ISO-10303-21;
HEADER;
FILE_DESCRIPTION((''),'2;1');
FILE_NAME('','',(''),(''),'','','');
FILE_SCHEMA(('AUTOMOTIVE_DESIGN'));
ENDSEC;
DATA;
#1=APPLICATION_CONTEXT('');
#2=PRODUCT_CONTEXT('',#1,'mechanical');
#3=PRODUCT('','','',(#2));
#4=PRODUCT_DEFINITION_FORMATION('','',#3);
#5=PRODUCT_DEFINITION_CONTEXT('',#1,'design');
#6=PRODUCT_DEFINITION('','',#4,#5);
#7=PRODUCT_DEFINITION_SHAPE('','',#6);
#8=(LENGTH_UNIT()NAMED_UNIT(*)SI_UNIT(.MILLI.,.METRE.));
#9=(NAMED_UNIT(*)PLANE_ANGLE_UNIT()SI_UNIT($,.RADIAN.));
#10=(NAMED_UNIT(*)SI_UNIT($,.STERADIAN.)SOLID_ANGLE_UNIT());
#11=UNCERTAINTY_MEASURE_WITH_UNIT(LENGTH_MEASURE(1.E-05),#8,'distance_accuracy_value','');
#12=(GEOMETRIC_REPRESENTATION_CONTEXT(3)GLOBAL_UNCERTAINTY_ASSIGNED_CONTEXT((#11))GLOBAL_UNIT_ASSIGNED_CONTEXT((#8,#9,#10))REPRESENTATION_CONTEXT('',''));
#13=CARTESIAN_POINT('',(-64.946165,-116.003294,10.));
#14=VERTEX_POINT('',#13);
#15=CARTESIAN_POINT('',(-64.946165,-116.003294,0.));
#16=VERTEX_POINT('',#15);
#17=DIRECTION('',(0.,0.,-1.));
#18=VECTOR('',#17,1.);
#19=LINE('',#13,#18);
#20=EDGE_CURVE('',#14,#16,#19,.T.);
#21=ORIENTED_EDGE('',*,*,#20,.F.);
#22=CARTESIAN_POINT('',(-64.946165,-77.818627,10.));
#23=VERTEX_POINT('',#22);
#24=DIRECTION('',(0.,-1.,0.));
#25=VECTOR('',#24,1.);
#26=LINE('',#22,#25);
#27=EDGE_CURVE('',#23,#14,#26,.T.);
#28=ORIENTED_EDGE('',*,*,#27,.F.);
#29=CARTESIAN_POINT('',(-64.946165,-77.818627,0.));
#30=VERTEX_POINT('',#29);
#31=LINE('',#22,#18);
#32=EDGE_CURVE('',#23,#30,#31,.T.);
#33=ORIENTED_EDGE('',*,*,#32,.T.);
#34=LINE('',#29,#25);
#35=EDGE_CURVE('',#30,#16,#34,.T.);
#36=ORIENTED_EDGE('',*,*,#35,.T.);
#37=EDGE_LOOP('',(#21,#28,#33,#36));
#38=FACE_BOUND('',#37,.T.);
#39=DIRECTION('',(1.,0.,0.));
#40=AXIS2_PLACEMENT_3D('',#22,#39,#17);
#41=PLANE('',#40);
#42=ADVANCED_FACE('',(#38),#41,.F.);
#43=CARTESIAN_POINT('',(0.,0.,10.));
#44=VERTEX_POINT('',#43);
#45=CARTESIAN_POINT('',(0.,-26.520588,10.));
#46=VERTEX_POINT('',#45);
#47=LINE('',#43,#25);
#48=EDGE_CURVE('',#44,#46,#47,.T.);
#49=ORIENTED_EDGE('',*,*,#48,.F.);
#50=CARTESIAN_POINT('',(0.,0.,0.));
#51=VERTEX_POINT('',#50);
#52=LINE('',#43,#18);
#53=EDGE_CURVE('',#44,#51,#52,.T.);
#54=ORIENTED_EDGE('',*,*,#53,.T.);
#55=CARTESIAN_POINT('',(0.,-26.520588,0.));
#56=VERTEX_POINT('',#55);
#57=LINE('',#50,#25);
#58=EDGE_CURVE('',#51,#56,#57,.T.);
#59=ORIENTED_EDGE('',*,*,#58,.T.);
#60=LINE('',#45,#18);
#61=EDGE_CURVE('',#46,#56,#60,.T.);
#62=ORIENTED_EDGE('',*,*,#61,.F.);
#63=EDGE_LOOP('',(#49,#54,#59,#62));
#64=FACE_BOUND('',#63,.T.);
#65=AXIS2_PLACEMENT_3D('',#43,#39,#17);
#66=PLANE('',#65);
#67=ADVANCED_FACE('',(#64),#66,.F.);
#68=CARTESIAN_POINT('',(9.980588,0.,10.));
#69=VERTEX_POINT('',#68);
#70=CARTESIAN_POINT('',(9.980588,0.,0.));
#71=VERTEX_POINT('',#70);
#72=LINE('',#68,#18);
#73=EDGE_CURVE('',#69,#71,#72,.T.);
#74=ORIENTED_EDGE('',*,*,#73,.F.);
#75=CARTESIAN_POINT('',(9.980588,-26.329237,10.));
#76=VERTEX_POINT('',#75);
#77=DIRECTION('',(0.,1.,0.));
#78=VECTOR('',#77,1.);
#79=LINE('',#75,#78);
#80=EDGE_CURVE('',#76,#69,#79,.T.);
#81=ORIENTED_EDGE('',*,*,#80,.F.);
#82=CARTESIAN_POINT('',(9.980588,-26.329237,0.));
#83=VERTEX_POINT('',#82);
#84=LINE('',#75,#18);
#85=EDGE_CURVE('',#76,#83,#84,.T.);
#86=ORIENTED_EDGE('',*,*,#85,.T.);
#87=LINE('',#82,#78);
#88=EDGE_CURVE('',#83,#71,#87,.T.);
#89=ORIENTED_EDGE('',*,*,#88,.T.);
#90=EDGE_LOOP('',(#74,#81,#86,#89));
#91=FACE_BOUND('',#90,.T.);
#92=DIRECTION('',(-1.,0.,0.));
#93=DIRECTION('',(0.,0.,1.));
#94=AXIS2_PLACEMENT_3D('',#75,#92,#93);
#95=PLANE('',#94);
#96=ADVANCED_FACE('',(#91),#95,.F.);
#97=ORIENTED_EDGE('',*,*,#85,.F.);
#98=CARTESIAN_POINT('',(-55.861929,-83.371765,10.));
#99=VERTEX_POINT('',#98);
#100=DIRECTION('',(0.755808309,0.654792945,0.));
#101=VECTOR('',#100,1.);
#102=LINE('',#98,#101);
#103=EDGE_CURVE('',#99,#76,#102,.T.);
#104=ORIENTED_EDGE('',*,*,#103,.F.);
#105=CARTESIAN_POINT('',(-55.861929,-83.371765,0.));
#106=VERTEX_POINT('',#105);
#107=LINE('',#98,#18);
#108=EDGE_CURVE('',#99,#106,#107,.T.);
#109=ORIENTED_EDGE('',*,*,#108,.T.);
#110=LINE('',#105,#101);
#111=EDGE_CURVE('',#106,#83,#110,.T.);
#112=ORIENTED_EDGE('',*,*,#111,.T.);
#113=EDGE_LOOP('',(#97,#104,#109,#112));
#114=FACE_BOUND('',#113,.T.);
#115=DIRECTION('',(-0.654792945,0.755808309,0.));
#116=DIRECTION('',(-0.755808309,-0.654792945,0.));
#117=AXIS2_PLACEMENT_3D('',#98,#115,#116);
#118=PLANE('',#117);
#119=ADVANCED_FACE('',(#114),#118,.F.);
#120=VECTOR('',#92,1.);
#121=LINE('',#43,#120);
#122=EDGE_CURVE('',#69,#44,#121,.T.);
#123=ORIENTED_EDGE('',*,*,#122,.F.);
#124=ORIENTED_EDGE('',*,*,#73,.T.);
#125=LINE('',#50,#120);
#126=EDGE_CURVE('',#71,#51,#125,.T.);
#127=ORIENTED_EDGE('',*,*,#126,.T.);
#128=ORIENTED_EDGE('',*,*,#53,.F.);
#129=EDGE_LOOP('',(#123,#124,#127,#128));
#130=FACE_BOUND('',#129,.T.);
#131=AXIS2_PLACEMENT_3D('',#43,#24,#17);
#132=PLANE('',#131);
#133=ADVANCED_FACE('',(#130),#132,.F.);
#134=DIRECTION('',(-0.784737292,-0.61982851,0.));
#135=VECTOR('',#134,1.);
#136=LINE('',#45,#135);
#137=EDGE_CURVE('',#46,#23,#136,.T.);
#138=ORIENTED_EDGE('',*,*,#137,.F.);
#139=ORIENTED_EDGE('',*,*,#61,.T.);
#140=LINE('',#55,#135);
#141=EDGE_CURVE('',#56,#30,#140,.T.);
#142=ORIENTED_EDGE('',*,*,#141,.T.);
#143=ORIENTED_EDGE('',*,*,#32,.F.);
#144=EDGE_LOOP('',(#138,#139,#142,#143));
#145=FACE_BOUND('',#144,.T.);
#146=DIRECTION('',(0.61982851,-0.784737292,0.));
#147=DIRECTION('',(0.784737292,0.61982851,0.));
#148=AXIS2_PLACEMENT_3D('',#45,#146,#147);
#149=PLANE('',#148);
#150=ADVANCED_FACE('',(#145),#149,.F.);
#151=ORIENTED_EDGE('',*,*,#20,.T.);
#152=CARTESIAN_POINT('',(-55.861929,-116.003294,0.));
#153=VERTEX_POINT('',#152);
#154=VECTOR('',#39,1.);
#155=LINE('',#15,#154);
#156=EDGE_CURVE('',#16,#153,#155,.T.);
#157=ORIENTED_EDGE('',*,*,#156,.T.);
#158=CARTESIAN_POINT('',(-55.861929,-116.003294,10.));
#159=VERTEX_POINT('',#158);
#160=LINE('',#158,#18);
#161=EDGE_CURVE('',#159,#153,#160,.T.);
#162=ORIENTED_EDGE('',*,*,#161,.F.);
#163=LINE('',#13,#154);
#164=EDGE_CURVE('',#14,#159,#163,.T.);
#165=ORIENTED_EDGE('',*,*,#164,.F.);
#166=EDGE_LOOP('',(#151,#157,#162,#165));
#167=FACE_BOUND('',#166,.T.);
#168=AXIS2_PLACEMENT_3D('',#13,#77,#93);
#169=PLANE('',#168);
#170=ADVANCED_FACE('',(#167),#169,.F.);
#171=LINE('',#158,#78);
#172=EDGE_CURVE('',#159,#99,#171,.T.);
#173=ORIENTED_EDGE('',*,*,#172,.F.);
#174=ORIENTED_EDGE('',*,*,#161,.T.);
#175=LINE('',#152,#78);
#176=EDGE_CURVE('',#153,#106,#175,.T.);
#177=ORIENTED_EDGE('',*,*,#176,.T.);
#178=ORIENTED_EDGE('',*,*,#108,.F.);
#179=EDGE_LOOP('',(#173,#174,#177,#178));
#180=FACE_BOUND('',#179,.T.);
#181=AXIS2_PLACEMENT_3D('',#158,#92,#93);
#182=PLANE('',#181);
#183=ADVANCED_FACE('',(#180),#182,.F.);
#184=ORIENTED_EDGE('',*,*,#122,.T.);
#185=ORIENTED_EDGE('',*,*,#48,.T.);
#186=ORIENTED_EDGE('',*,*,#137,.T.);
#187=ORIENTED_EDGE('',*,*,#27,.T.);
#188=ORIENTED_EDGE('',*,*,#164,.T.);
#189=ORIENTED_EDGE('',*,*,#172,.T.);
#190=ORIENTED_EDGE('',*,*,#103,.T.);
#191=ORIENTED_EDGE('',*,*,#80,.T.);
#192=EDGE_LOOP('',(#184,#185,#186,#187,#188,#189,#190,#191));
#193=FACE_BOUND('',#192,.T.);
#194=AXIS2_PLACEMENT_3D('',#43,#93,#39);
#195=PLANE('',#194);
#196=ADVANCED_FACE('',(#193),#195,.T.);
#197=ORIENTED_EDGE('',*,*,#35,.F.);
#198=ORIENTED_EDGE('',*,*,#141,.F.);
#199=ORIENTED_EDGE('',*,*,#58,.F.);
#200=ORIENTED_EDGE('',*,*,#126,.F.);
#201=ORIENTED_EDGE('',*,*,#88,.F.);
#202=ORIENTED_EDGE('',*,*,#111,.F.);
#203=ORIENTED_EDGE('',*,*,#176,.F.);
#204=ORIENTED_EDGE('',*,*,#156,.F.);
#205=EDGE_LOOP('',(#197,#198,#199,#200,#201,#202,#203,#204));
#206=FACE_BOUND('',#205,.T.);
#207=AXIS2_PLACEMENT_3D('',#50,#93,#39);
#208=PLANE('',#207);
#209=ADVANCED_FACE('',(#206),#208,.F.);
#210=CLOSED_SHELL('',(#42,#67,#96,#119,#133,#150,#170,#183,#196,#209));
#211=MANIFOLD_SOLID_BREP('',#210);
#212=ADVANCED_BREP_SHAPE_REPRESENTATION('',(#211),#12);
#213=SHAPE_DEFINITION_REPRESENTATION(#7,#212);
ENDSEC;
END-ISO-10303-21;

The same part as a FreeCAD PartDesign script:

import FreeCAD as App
import Part
import Sketcher
from FreeCAD import Vector
Q = App.Units.Quantity


def add_polygon(sketch, points):
    """Adds a closed chain of lines whose ends are joined by coincident constraints."""
    first, n = sketch.GeometryCount, len(points)
    for a, b in zip(points, points[1:] + points[:1]):
        sketch.addGeometry(Part.LineSegment(App.Vector(*a, 0), App.Vector(*b, 0)), False)
    for i in range(n):
        sketch.addConstraint(Sketcher.Constraint("Coincident", first + i, 2, first + (i + 1) % n, 1))

doc = App.newDocument("Part")
params = doc.addObject("Spreadsheet::Sheet", "Params")
for row, (alias, value) in enumerate([
    ("pad1_length", "10 mm"),
], start=1):
    params.set(f"A{row}", alias)
    params.set(f"B{row}", "=" + value)
    params.setAlias(f"B{row}", alias)

body = doc.addObject("PartDesign::Body", "Body")

# Sketch on XY plane
sketch1 = doc.addObject("Sketcher::SketchObject", "Sketch")
body.addObject(sketch1)
sketch1.AttachmentSupport = (doc.XY_Plane, [""])
sketch1.MapMode = "FlatFace"
add_polygon(sketch1, [(0, 0), (0, -27), (-65, -78), (-65, -116), (-56, -116), (-56, -83), (10, -26), (10, 0)])  # lines 0-7
sketch1.addConstraint([
    Sketcher.Constraint("Vertical", 0),
    Sketcher.Constraint("Vertical", 2),
    Sketcher.Constraint("Horizontal", 3),
    Sketcher.Constraint("Vertical", 4),
    Sketcher.Constraint("Vertical", 6),
    Sketcher.Constraint("Horizontal", 7),
    Sketcher.Constraint("Coincident", 7, 2, -1, 1),
    Sketcher.Constraint("DistanceX", 7, 2, 7, 1, Q("9.980588 mm")),
    Sketcher.Constraint("DistanceY", 0, 2, 0, 1, Q("26.520588 mm")),
    Sketcher.Constraint("DistanceY", 4, 1, 4, 2, Q("32.631529 mm")),
    Sketcher.Constraint("DistanceX", 3, 1, 3, 2, Q("9.084235 mm")),
    Sketcher.Constraint("DistanceY", 2, 2, 2, 1, Q("38.184667 mm")),
    Sketcher.Constraint("DistanceY", 6, 1, 6, 2, Q("26.329237 mm")),
    Sketcher.Constraint("DistanceX", 3, 2, -1, 1, Q("55.861929 mm")),
    Sketcher.Constraint("DistanceY", 1, 2, 0, 2, Q("51.298039 mm")),
])
pad1 = doc.addObject("PartDesign::Pad", "Pad")
body.addObject(pad1)
pad1.Profile = sketch1
pad1.setExpression("Length", "Params.pad1_length")

doc.recompute()
